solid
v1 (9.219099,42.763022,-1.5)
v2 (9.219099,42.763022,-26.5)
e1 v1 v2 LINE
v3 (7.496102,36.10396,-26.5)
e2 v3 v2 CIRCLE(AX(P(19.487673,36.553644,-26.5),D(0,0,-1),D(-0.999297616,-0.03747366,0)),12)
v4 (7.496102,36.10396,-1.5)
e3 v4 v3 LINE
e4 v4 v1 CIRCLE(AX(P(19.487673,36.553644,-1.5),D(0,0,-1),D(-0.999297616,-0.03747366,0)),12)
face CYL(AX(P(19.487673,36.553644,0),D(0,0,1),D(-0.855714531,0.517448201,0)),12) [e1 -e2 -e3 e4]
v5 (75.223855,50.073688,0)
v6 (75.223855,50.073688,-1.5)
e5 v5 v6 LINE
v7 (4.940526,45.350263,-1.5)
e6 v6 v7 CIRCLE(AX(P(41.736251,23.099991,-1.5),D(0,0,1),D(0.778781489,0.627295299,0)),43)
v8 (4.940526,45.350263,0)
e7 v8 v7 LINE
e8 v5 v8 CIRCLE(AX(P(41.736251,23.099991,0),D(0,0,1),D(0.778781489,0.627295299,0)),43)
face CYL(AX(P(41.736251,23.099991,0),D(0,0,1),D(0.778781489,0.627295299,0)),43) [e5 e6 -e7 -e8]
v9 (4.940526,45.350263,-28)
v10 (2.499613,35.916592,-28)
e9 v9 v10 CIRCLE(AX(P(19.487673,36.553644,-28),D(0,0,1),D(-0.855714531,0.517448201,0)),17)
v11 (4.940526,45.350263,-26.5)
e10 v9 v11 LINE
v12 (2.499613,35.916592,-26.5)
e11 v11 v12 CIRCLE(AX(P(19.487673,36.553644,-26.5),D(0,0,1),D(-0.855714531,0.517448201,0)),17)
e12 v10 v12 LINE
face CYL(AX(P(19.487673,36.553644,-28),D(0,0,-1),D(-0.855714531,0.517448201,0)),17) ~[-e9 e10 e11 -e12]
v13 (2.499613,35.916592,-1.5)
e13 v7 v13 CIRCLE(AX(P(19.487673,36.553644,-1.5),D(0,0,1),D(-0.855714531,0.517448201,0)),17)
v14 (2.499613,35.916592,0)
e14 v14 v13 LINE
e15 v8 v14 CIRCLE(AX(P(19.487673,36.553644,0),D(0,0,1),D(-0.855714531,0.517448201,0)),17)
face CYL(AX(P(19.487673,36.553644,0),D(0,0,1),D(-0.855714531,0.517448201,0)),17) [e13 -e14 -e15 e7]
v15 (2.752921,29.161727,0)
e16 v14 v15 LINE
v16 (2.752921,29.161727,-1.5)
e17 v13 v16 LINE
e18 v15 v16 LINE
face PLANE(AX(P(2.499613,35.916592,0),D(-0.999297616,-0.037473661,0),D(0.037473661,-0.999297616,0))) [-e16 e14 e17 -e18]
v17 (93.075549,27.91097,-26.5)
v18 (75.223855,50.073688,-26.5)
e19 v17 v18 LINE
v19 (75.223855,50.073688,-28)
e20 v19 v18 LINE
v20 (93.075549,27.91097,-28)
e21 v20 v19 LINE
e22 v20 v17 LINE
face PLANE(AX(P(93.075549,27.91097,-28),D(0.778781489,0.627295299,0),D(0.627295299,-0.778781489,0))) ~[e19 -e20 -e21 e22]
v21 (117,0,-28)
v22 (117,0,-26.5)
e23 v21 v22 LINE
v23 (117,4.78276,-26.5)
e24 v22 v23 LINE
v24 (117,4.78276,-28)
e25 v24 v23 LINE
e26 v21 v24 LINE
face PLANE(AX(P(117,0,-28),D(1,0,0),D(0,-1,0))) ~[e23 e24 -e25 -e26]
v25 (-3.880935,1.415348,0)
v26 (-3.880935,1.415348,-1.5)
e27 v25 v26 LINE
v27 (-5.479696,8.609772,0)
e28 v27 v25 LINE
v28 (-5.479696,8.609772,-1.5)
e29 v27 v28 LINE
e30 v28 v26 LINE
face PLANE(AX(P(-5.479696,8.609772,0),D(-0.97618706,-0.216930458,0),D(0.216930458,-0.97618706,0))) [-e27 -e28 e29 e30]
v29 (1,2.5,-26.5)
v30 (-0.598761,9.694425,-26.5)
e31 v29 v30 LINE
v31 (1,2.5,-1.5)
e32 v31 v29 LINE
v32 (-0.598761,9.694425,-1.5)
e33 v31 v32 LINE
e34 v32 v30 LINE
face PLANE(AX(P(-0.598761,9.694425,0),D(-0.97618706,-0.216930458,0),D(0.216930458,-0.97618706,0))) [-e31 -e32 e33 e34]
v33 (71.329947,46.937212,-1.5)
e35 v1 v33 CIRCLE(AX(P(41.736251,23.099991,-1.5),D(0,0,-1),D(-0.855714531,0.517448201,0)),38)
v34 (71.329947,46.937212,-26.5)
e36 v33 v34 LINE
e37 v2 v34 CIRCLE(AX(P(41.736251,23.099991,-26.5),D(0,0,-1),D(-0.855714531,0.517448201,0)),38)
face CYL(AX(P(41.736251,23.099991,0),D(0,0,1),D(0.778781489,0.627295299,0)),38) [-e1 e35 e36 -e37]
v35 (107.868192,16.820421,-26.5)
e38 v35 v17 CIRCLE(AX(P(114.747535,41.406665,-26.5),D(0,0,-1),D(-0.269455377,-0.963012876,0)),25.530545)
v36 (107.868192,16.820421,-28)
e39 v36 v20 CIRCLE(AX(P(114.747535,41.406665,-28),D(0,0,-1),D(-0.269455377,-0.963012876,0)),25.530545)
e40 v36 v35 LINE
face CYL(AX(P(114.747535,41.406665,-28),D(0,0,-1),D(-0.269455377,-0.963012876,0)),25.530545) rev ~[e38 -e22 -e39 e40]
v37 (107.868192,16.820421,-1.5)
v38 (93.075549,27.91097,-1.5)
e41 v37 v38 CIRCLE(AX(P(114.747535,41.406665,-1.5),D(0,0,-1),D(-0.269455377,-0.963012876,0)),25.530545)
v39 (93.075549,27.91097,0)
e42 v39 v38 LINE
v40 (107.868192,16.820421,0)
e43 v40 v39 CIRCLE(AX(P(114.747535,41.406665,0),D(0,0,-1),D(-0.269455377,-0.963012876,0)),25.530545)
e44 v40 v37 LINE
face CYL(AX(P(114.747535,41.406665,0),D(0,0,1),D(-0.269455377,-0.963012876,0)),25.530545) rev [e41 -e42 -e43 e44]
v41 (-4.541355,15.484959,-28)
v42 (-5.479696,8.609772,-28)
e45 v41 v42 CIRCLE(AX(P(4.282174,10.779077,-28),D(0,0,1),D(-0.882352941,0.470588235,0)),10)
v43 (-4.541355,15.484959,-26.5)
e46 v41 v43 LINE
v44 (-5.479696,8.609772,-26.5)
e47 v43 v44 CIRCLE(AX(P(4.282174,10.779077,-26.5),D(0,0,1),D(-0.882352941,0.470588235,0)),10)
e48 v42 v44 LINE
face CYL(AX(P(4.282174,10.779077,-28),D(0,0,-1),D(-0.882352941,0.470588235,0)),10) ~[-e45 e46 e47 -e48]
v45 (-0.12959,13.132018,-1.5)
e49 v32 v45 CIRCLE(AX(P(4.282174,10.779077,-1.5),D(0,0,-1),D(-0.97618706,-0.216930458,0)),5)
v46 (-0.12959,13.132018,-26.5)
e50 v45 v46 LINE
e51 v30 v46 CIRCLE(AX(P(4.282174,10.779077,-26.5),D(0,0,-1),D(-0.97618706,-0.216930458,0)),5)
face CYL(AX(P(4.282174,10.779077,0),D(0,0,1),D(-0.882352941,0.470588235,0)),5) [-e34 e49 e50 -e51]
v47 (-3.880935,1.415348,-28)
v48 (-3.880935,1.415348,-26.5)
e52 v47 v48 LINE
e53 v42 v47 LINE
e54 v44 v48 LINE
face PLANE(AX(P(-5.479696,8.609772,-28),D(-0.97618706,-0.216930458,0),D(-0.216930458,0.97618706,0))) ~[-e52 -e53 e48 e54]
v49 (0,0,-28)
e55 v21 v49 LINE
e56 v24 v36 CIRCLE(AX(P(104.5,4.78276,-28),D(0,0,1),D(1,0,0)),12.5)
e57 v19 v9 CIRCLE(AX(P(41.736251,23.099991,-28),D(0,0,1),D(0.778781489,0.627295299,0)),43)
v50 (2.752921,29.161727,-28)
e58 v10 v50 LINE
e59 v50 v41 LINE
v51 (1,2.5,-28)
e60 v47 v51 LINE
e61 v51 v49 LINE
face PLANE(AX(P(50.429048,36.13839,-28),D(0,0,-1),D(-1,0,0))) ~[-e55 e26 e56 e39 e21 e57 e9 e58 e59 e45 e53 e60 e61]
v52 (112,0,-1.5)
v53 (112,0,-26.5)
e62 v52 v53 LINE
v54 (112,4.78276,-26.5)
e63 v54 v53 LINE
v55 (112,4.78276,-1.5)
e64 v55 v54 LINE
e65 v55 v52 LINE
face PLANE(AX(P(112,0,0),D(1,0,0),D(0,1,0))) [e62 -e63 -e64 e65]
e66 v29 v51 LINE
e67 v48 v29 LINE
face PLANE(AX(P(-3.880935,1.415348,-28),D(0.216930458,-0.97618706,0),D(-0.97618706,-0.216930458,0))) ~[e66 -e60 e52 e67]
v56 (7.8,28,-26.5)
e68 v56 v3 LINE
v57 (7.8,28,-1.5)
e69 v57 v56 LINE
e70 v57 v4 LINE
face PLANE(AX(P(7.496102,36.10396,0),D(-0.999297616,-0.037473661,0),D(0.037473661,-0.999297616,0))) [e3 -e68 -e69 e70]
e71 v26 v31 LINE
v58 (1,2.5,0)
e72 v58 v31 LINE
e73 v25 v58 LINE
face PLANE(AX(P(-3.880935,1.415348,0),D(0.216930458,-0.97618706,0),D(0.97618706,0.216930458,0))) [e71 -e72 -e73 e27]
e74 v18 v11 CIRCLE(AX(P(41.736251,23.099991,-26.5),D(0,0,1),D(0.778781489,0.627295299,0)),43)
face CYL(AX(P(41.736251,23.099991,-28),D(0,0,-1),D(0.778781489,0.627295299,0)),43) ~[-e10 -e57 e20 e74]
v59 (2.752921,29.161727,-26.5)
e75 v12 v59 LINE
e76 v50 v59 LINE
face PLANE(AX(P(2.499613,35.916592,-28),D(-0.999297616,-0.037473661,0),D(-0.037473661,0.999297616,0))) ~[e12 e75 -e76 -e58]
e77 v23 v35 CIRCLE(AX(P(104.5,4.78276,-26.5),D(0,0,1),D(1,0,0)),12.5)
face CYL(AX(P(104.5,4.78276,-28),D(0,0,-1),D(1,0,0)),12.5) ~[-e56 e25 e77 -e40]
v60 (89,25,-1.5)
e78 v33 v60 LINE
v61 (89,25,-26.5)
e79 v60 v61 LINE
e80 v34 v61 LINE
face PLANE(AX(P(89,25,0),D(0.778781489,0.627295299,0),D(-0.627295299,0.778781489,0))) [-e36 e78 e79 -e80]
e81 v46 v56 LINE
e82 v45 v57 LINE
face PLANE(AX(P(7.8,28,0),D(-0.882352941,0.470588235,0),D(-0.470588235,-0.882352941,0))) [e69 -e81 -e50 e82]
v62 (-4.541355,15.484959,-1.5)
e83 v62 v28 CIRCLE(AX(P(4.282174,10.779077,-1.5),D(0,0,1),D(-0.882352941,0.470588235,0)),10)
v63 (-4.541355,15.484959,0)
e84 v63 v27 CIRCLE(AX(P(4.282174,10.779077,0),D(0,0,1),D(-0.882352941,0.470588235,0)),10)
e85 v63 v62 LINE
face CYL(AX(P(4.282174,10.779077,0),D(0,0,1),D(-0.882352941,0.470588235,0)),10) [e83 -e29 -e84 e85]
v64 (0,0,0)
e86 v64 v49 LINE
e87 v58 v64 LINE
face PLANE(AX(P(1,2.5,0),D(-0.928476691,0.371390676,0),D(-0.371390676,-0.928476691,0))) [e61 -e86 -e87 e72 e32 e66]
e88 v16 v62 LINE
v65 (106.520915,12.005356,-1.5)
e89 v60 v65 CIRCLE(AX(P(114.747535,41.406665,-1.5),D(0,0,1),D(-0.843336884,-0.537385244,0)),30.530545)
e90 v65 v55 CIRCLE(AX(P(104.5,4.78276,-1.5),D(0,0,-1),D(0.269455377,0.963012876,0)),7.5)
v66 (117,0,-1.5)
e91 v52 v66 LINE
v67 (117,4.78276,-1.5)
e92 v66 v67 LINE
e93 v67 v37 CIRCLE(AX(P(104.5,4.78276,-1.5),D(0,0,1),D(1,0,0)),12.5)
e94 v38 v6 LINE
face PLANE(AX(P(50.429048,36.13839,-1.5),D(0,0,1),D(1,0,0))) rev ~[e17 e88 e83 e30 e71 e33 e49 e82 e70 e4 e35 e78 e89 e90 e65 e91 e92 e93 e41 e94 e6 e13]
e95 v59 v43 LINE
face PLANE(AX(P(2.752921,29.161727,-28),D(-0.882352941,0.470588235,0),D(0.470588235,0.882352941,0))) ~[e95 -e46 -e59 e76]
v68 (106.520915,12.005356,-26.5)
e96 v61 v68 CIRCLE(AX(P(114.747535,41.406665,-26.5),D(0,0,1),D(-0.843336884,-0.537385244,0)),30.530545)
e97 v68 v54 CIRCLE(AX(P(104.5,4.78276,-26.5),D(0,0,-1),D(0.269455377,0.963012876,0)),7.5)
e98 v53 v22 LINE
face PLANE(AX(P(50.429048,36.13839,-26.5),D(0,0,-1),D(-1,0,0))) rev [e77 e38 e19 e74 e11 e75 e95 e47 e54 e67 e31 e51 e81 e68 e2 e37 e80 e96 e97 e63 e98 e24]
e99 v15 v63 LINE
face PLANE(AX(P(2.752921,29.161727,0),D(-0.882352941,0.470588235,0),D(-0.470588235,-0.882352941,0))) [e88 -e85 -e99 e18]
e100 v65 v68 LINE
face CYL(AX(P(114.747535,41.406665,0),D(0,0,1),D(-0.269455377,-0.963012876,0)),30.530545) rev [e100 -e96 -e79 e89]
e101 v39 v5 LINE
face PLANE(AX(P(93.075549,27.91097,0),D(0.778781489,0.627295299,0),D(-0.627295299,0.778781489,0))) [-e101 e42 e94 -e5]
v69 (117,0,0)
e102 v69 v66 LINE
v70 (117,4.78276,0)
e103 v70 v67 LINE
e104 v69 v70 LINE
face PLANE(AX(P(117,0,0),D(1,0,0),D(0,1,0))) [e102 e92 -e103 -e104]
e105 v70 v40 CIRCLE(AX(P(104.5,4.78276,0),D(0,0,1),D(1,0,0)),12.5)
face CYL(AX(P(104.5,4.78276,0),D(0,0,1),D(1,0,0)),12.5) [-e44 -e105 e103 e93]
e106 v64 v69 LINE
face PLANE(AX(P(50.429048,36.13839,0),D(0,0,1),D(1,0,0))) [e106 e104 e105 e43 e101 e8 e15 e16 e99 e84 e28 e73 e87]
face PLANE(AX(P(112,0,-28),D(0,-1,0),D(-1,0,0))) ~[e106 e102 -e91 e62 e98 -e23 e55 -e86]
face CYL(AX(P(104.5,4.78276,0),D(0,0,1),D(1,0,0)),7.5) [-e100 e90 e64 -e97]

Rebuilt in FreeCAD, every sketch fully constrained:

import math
import FreeCAD as App
import Part
import Sketcher
Q = App.Units.Quantity

doc = App.newDocument("Part")
params = doc.addObject("Spreadsheet::Sheet", "Params")
for row, (alias, value) in enumerate([
    ("sketch1_radius", "38 mm"),
    ("sketch1_radius2", "12 mm"),
    ("sketch1_radius3", "5 mm"),
    ("sketch1_radius4", "7.5 mm"),
    ("sketch1_width", "112 mm"),
    ("pad1_length", "28 mm"),
    ("sketch2_radius", "43 mm"),
    ("sketch2_radius2", "17 mm"),
    ("sketch2_radius3", "10 mm"),
    ("sketch2_radius4", "5 mm"),
    ("sketch2_radius5", "12 mm"),
    ("pad2_length", "1.5 mm"),
], start=1):
    params.set(f"A{row}", alias)
    params.set(f"B{row}", "=" + value)
    params.setAlias(f"B{row}", alias)

body = doc.addObject("PartDesign::Body", "Body")

# Sketch on XY plane
sketch1 = body.newObject("Sketcher::SketchObject", "Sketch")
sketch1.AttachmentSupport = (doc.getObject("XY_Plane"), [""])
sketch1.MapMode = "FlatFace"
sketch1.addGeometry(Part.LineSegment(App.Vector(0, 0, 0), App.Vector(112, 0, 0)), False)
sketch1.addGeometry(Part.LineSegment(App.Vector(112, 0, 0), App.Vector(112, 4.78276, 0)), False)
sketch1.addGeometry(Part.ArcOfCircle(Part.Circle(App.Vector(104.5, 4.78276, 0), App.Vector(0, 0, 1), 7.5), math.radians(0), math.radians(74.368139)), False)
sketch1.addGeometry(Part.ArcOfCircle(Part.Circle(App.Vector(114.747535, 41.406665, 0), App.Vector(0, 0, 1), 30.530545), math.radians(-147.494182), math.radians(-105.631861)), False)
sketch1.addGeometry(Part.LineSegment(App.Vector(89, 25, 0), App.Vector(71.329947, 46.937212, 0)), False)
sketch1.addGeometry(Part.ArcOfCircle(Part.Circle(App.Vector(41.736251, 23.099991, 0), App.Vector(0, 0, 1), 38), math.radians(38.850855), math.radians(148.838763)), False)
sketch1.addGeometry(Part.ArcOfCircle(Part.Circle(App.Vector(19.487673, 36.553644, 0), App.Vector(0, 0, 1), 12), math.radians(148.838763), math.radians(182.147585)), False)
sketch1.addGeometry(Part.LineSegment(App.Vector(7.496102, 36.10396, 0), App.Vector(7.8, 28, 0)), False)
sketch1.addGeometry(Part.LineSegment(App.Vector(7.8, 28, 0), App.Vector(-0.12959, 13.132018, 0)), False)
sketch1.addGeometry(Part.ArcOfCircle(Part.Circle(App.Vector(4.282174, 10.779077, 0), App.Vector(0, 0, 1), 5), math.radians(151.927513), math.radians(192.528808)), False)
sketch1.addGeometry(Part.LineSegment(App.Vector(-0.598761, 9.694425, 0), App.Vector(1, 2.5, 0)), False)
sketch1.addGeometry(Part.LineSegment(App.Vector(1, 2.5, 0), App.Vector(0, 0, 0)), False)
sketch1.addConstraint(Sketcher.Constraint("Coincident", 0, 2, 1, 1))
sketch1.addConstraint(Sketcher.Constraint("Coincident", 1, 2, 2, 1))
sketch1.addConstraint(Sketcher.Constraint("Coincident", 2, 2, 3, 2))
sketch1.addConstraint(Sketcher.Constraint("Coincident", 3, 1, 4, 1))
sketch1.addConstraint(Sketcher.Constraint("Coincident", 4, 2, 5, 1))
sketch1.addConstraint(Sketcher.Constraint("Coincident", 5, 2, 6, 1))
sketch1.addConstraint(Sketcher.Constraint("Coincident", 6, 2, 7, 1))
sketch1.addConstraint(Sketcher.Constraint("Coincident", 7, 2, 8, 1))
sketch1.addConstraint(Sketcher.Constraint("Coincident", 8, 2, 9, 1))
sketch1.addConstraint(Sketcher.Constraint("Coincident", 9, 2, 10, 1))
sketch1.addConstraint(Sketcher.Constraint("Coincident", 10, 2, 11, 1))
sketch1.addConstraint(Sketcher.Constraint("Coincident", 11, 2, 0, 1))
sketch1.addConstraint(Sketcher.Constraint("Horizontal", 0))
sketch1.addConstraint(Sketcher.Constraint("Vertical", 1))
sketch1.addConstraint(Sketcher.Constraint("Coincident", 11, 2, -1, 1))
sketch1.addConstraint(Sketcher.Constraint("Radius", 5, Q("38 mm")))
sketch1.addConstraint(Sketcher.Constraint("Radius", 6, Q("12 mm")))
sketch1.addConstraint(Sketcher.Constraint("Radius", 9, Q("5 mm")))
sketch1.addConstraint(Sketcher.Constraint("Radius", 2, Q("7.5 mm")))
sketch1.addConstraint(Sketcher.Constraint("DistanceX", 0, 1, 0, 2, Q("112 mm")))
sketch1.addConstraint(Sketcher.Constraint("DistanceX", -1, 1, 3, 1, Q("89 mm")))
sketch1.addConstraint(Sketcher.Constraint("DistanceY", -1, 1, 3, 1, Q("25 mm")))
sketch1.addConstraint(Sketcher.Constraint("DistanceY", -1, 1, 7, 2, Q("28 mm")))
sketch1.addConstraint(Sketcher.Constraint("DistanceX", -1, 1, 10, 2, Q("1 mm")))
sketch1.addConstraint(Sketcher.Constraint("DistanceX", -1, 1, 7, 2, Q("7.8 mm")))
sketch1.addConstraint(Sketcher.Constraint("DistanceY", -1, 1, 10, 2, Q("2.5 mm")))
sketch1.addConstraint(Sketcher.Constraint("Radius", 3, Q("30.530545 mm")))
sketch1.addConstraint(Sketcher.Constraint("DistanceY", 1, 1, 1, 2, Q("4.78276 mm")))
sketch1.addConstraint(Sketcher.Constraint("DistanceX", -1, 1, 5, 2, Q("9.219099 mm")))
sketch1.addConstraint(Sketcher.Constraint("DistanceX", -1, 1, 6, 2, Q("7.496102 mm")))
sketch1.addConstraint(Sketcher.Constraint("DistanceX", 9, 3, 6, 3, Q("15.205499 mm")))
sketch1.addConstraint(Sketcher.Constraint("Distance", 8, Q("16.85038 mm")))
sketch1.addConstraint(Sketcher.Constraint("DistanceY", -1, 1, 2, 3, Q("4.78276 mm")))
sketch1.addConstraint(Sketcher.Constraint("DistanceX", -1, 1, 5, 3, Q("41.736251 mm")))
sketch1.addConstraint(Sketcher.Constraint("DistanceY", -1, 1, 5, 3, Q("23.099991 mm")))
sketch1.addConstraint(Sketcher.Constraint("DistanceY", -1, 1, 6, 2, Q("36.10396 mm")))
sketch1.addConstraint(Sketcher.Constraint("DistanceX", 8, 2, -1, 1, Q("0.12959 mm")))
sketch1.addConstraint(Sketcher.Constraint("DistanceX", 9, 2, -1, 1, Q("0.598761 mm")))
sketch1.addConstraint(Sketcher.Constraint("DistanceX", 2, 2, 3, 3, Q("8.22662 mm")))
sketch1.addConstraint(Sketcher.Constraint("DistanceY", 5, 3, 4, 2, Q("23.837221 mm")))
sketch1.setExpression("Constraints[15]", "Params.sketch1_radius")
sketch1.setExpression("Constraints[16]", "Params.sketch1_radius2")
sketch1.setExpression("Constraints[17]", "Params.sketch1_radius3")
sketch1.setExpression("Constraints[18]", "Params.sketch1_radius4")
sketch1.setExpression("Constraints[19]", "Params.sketch1_width")
pad1 = body.newObject("PartDesign::Pad", "Pad")
pad1.Profile = sketch1
pad1.setExpression("Length", "Params.pad1_length")
pad1.Reversed = True

# Sketch on XY plane
sketch2 = body.newObject("Sketcher::SketchObject", "Sketch001")
sketch2.AttachmentSupport = (doc.getObject("XY_Plane"), [""])
sketch2.MapMode = "FlatFace"
sketch2.addGeometry(Part.LineSegment(App.Vector(93.1, 27.9, 0), App.Vector(75.2, 50.1, 0)), False)
sketch2.addGeometry(Part.ArcOfCircle(Part.Circle(App.Vector(41.7, 23.1, 0), App.Vector(0, 0, 1), 43), math.radians(39), math.radians(149)), False)
sketch2.addGeometry(Part.ArcOfCircle(Part.Circle(App.Vector(19.5, 36.6, 0), App.Vector(0, 0, 1), 17), math.radians(149), math.radians(182)), False)
sketch2.addGeometry(Part.LineSegment(App.Vector(2.5, 35.9, 0), App.Vector(2.8, 29.2, 0)), False)
sketch2.addGeometry(Part.LineSegment(App.Vector(2.8, 29.2, 0), App.Vector(-4.5, 15.5, 0)), False)
sketch2.addGeometry(Part.ArcOfCircle(Part.Circle(App.Vector(4.3, 10.8, 0), App.Vector(0, 0, 1), 10), math.radians(152), math.radians(193)), False)
sketch2.addGeometry(Part.LineSegment(App.Vector(-5.5, 8.6, 0), App.Vector(-3.9, 1.4, 0)), False)
sketch2.addGeometry(Part.LineSegment(App.Vector(-3.9, 1.4, 0), App.Vector(1, 2.5, 0)), False)
sketch2.addGeometry(Part.LineSegment(App.Vector(1, 2.5, 0), App.Vector(-0.6, 9.7, 0)), False)
sketch2.addGeometry(Part.ArcOfCircle(Part.Circle(App.Vector(4.3, 10.8, 0), App.Vector(0, 0, 1), 5), math.radians(152), math.radians(193)), False)
sketch2.addGeometry(Part.LineSegment(App.Vector(-0.1, 13.1, 0), App.Vector(7.8, 28, 0)), False)
sketch2.addGeometry(Part.LineSegment(App.Vector(7.8, 28, 0), App.Vector(7.5, 36.1, 0)), False)
sketch2.addGeometry(Part.ArcOfCircle(Part.Circle(App.Vector(19.5, 36.6, 0), App.Vector(0, 0, 1), 12), math.radians(149), math.radians(182)), False)
sketch2.addGeometry(Part.ArcOfCircle(Part.Circle(App.Vector(41.7, 23.1, 0), App.Vector(0, 0, 1), 38), math.radians(39), math.radians(149)), False)
sketch2.addGeometry(Part.LineSegment(App.Vector(71.3, 46.9, 0), App.Vector(89, 25, 0)), False)
sketch2.addGeometry(Part.ArcOfCircle(Part.Circle(App.Vector(114.7, 41.4, 0), App.Vector(0, 0, 1), 30.5), math.radians(-147), math.radians(-106)), False)
sketch2.addGeometry(Part.ArcOfCircle(Part.Circle(App.Vector(104.5, 4.8, 0), App.Vector(0, 0, 1), 7.5), math.radians(0), math.radians(74)), False)
sketch2.addGeometry(Part.LineSegment(App.Vector(112, 4.8, 0), App.Vector(112, 0, 0)), False)
sketch2.addGeometry(Part.LineSegment(App.Vector(112, 0, 0), App.Vector(117, 0, 0)), False)
sketch2.addGeometry(Part.LineSegment(App.Vector(117, 0, 0), App.Vector(117, 4.8, 0)), False)
sketch2.addGeometry(Part.ArcOfCircle(Part.Circle(App.Vector(104.5, 4.8, 0), App.Vector(0, 0, 1), 12.5), math.radians(0), math.radians(74)), False)
sketch2.addGeometry(Part.ArcOfCircle(Part.Circle(App.Vector(114.7, 41.4, 0), App.Vector(0, 0, 1), 25.5), math.radians(-148), math.radians(-106)), False)
sketch2.addConstraint(Sketcher.Constraint("Tangent", 0, 2, 1, 1))
sketch2.addConstraint(Sketcher.Constraint("Tangent", 1, 2, 2, 1))
sketch2.addConstraint(Sketcher.Constraint("Tangent", 2, 2, 3, 1))
sketch2.addConstraint(Sketcher.Constraint("Coincident", 3, 2, 4, 1))
sketch2.addConstraint(Sketcher.Constraint("Tangent", 4, 2, 5, 1))
sketch2.addConstraint(Sketcher.Constraint("Tangent", 5, 2, 6, 1))
sketch2.addConstraint(Sketcher.Constraint("Coincident", 6, 2, 7, 1))
sketch2.addConstraint(Sketcher.Constraint("Coincident", 7, 2, 8, 1))
sketch2.addConstraint(Sketcher.Constraint("Tangent", 8, 2, 9, 2))
sketch2.addConstraint(Sketcher.Constraint("Tangent", 9, 1, 10, 1))
sketch2.addConstraint(Sketcher.Constraint("Coincident", 10, 2, 11, 1))
sketch2.addConstraint(Sketcher.Constraint("Tangent", 11, 2, 12, 2))
sketch2.addConstraint(Sketcher.Constraint("Tangent", 12, 1, 13, 2))
sketch2.addConstraint(Sketcher.Constraint("Tangent", 13, 1, 14, 1))
sketch2.addConstraint(Sketcher.Constraint("Coincident", 14, 2, 15, 1))
sketch2.addConstraint(Sketcher.Constraint("Tangent", 15, 2, 16, 2))
sketch2.addConstraint(Sketcher.Constraint("Tangent", 16, 1, 17, 1))
sketch2.addConstraint(Sketcher.Constraint("Coincident", 17, 2, 18, 1))
sketch2.addConstraint(Sketcher.Constraint("Coincident", 18, 2, 19, 1))
sketch2.addConstraint(Sketcher.Constraint("Tangent", 19, 2, 20, 1))
sketch2.addConstraint(Sketcher.Constraint("Tangent", 20, 2, 21, 2))
sketch2.addConstraint(Sketcher.Constraint("Coincident", 21, 1, 0, 1))
sketch2.addConstraint(Sketcher.Constraint("Vertical", 17))
sketch2.addConstraint(Sketcher.Constraint("Horizontal", 18))
sketch2.addConstraint(Sketcher.Constraint("Vertical", 19))
sketch2.addConstraint(Sketcher.Constraint("Coincident", 9, 3, 5, 3))
sketch2.addConstraint(Sketcher.Constraint("Coincident", 12, 3, 2, 3))
sketch2.addConstraint(Sketcher.Constraint("Coincident", 13, 3, 1, 3))
sketch2.addConstraint(Sketcher.Constraint("Coincident", 20, 3, 16, 3))
sketch2.addConstraint(Sketcher.Constraint("Coincident", 21, 3, 15, 3))
sketch2.addConstraint(Sketcher.Constraint("PointOnObject", 17, 2, -1))
sketch2.addConstraint(Sketcher.Constraint("Perpendicular", 6, 7))
sketch2.addConstraint(Sketcher.Constraint("Perpendicular", 7, 8))
sketch2.addConstraint(Sketcher.Constraint("Parallel", 4, 10))
sketch2.addConstraint(Sketcher.Constraint("Parallel", 3, 11))
sketch2.addConstraint(Sketcher.Constraint("Parallel", 0, 14))
sketch2.addConstraint(Sketcher.Constraint("Radius", 1, Q("43 mm")))
sketch2.addConstraint(Sketcher.Constraint("Radius", 2, Q("17 mm")))
sketch2.addConstraint(Sketcher.Constraint("Radius", 5, Q("10 mm")))
sketch2.addConstraint(Sketcher.Constraint("Radius", 9, Q("5 mm")))
sketch2.addConstraint(Sketcher.Constraint("Radius", 12, Q("12 mm")))
sketch2.addConstraint(Sketcher.Constraint("Radius", 16, Q("7.5 mm")))
sketch2.addConstraint(Sketcher.Constraint("Radius", 20, Q("12.5 mm")))
sketch2.addConstraint(Sketcher.Constraint("DistanceX", -1, 1, 7, 2, Q("1 mm")))
sketch2.addConstraint(Sketcher.Constraint("DistanceY", -1, 1, 10, 2, Q("28 mm")))
sketch2.addConstraint(Sketcher.Constraint("DistanceX", -1, 1, 14, 2, Q("89 mm")))
sketch2.addConstraint(Sketcher.Constraint("DistanceY", -1, 1, 14, 2, Q("25 mm")))
sketch2.addConstraint(Sketcher.Constraint("DistanceX", -1, 1, 16, 1, Q("112 mm")))
sketch2.addConstraint(Sketcher.Constraint("DistanceY", -1, 1, 7, 2, Q("2.5 mm")))
sketch2.addConstraint(Sketcher.Constraint("DistanceX", -1, 1, 10, 2, Q("7.8 mm")))
sketch2.addConstraint(Sketcher.Constraint("Radius", 15, Q("30.530545 mm")))
sketch2.addConstraint(Sketcher.Constraint("Distance", 0, Q("28.458198 mm")))
sketch2.addConstraint(Sketcher.Constraint("DistanceY", 17, 2, 17, 1, Q("4.78276 mm")))
sketch2.addConstraint(Sketcher.Constraint("DistanceX", -1, 1, 11, 2, Q("7.496102 mm")))
sketch2.addConstraint(Sketcher.Constraint("DistanceX", -1, 1, 12, 1, Q("9.219099 mm")))
sketch2.addConstraint(Sketcher.Constraint("DistanceX", 5, 3, 2, 3, Q("15.205499 mm")))
sketch2.addConstraint(Sketcher.Constraint("Distance", 10, Q("16.85038 mm")))
sketch2.setExpression("Constraints[36]", "Params.sketch2_radius")
sketch2.setExpression("Constraints[37]", "Params.sketch2_radius2")
sketch2.setExpression("Constraints[38]", "Params.sketch2_radius3")
sketch2.setExpression("Constraints[39]", "Params.sketch2_radius4")
sketch2.setExpression("Constraints[40]", "Params.sketch2_radius5")
pad2 = body.newObject("PartDesign::Pad", "Pad001")
pad2.Profile = sketch2
pad2.setExpression("Length", "Params.pad2_length")
pad2.Reversed = True
doc.recompute()

datumplane = body.newObject("PartDesign::Plane", "DatumPlane")
datumplane.AttachmentSupport = (doc.getObject("XY_Plane"), [""])
datumplane.MapMode = "FlatFace"
datumplane.AttachmentOffset = App.Placement(App.Vector(0, 0, -14), App.Rotation())
mirrored = body.newObject("PartDesign::Mirrored", "Mirrored")
mirrored.Originals = [pad2]
mirrored.MirrorPlane = (datumplane, [""])
body.Tip = mirrored

doc.recompute()
